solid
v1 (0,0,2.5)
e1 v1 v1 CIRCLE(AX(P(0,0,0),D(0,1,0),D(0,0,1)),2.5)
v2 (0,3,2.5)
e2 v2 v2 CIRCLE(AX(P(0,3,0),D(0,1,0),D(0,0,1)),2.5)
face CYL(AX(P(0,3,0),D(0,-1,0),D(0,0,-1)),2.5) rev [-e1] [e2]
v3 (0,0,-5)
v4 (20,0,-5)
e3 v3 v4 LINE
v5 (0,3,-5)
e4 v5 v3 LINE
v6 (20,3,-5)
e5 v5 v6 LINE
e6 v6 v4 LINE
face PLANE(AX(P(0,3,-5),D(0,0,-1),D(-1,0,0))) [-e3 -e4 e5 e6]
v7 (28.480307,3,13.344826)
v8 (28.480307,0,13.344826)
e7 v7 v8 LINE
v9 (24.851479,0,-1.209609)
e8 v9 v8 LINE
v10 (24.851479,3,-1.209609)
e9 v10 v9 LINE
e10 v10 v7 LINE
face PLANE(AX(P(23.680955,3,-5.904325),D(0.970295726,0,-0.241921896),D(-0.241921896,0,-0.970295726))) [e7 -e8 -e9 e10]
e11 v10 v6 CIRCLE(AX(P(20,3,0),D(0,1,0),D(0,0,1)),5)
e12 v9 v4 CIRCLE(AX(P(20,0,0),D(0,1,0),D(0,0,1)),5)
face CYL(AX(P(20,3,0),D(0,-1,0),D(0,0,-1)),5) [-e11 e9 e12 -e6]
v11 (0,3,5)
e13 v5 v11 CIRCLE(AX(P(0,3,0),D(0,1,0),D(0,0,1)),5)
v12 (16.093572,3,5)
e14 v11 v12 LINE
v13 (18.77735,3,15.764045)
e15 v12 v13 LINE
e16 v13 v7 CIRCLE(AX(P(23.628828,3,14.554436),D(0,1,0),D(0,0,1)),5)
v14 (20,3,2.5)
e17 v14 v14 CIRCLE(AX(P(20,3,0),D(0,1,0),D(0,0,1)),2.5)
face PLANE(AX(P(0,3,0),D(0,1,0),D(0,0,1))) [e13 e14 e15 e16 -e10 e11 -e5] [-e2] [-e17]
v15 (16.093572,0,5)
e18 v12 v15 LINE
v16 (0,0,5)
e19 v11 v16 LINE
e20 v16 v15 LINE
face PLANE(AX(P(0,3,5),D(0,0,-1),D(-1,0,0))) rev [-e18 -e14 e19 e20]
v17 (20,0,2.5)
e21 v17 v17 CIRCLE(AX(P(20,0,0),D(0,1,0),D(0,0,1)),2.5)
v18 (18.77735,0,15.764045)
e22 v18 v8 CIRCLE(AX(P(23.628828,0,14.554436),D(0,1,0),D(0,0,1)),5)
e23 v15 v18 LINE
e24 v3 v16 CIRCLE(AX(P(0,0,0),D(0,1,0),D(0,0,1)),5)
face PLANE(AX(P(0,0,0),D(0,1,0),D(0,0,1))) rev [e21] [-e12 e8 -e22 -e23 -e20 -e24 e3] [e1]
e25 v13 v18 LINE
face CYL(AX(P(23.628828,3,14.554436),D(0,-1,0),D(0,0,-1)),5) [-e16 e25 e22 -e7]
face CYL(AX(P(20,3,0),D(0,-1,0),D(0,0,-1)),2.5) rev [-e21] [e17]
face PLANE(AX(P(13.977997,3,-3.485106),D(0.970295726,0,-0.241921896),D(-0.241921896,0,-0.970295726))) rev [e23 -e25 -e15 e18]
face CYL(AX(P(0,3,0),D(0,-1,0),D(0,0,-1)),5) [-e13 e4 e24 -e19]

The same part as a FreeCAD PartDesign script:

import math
import FreeCAD as App
import Part
import Sketcher
Q = App.Units.Quantity

doc = App.newDocument("Part")
body = doc.addObject("PartDesign::Body", "Body")

# Sketch on XZ plane
sketch1 = body.newObject("Sketcher::SketchObject", "Sketch")
sketch1.AttachmentSupport = (doc.getObject("XZ_Plane"), [""])
sketch1.MapMode = "FlatFace"
sketch1.addGeometry(Part.LineSegment(App.Vector(20, -5, 0), App.Vector(0, -5, 0)), False)
sketch1.addGeometry(Part.ArcOfCircle(Part.Circle(App.Vector(0, 0, 0), App.Vector(0, 0, 1), 5), math.radians(90), math.radians(270)), False)
sketch1.addGeometry(Part.LineSegment(App.Vector(0, 5, 0), App.Vector(16.1, 5, 0)), False)
sketch1.addGeometry(Part.LineSegment(App.Vector(16.1, 5, 0), App.Vector(18.8, 15.8, 0)), False)
sketch1.addGeometry(Part.ArcOfCircle(Part.Circle(App.Vector(23.6, 14.6, 0), App.Vector(0, 0, 1), 5), math.radians(-14), math.radians(166)), False)
sketch1.addGeometry(Part.LineSegment(App.Vector(28.5, 13.3, 0), App.Vector(24.9, -1.2, 0)), False)
sketch1.addGeometry(Part.ArcOfCircle(Part.Circle(App.Vector(20, 0, 0), App.Vector(0, 0, 1), 5), math.radians(-90), math.radians(-14)), False)
sketch1.addGeometry(Part.Circle(App.Vector(0, 0, 0), App.Vector(0, 0, 1), 2.5), False)
sketch1.addGeometry(Part.Circle(App.Vector(20, 0, 0), App.Vector(0, 0, 1), 2.5), False)
sketch1.addConstraint(Sketcher.Constraint("Tangent", 0, 2, 1, 2))
sketch1.addConstraint(Sketcher.Constraint("Tangent", 1, 1, 2, 1))
sketch1.addConstraint(Sketcher.Constraint("Coincident", 2, 2, 3, 1))
sketch1.addConstraint(Sketcher.Constraint("Tangent", 3, 2, 4, 2))
sketch1.addConstraint(Sketcher.Constraint("Tangent", 4, 1, 5, 1))
sketch1.addConstraint(Sketcher.Constraint("Tangent", 5, 2, 6, 2))
sketch1.addConstraint(Sketcher.Constraint("Tangent", 6, 1, 0, 1))
sketch1.addConstraint(Sketcher.Constraint("Horizontal", 0))
sketch1.addConstraint(Sketcher.Constraint("Horizontal", 2))
sketch1.addConstraint(Sketcher.Constraint("Coincident", 1, 3, -1, 1))
sketch1.addConstraint(Sketcher.Constraint("Coincident", 7, 3, -1, 1))
sketch1.addConstraint(Sketcher.Constraint("Coincident", 8, 3, 6, 3))
sketch1.addConstraint(Sketcher.Constraint("Equal", 1, 4))
sketch1.addConstraint(Sketcher.Constraint("Equal", 4, 6))
sketch1.addConstraint(Sketcher.Constraint("Equal", 7, 8))
sketch1.addConstraint(Sketcher.Constraint("Parallel", 3, 5))
sketch1.addConstraint(Sketcher.Constraint("Diameter", 7, 5.0))
sketch1.addConstraint(Sketcher.Constraint("Radius", 1, 5.0))
sketch1.addConstraint(Sketcher.Constraint("DistanceX", 0, 2, 0, 1, 20.0))
sketch1.addConstraint(Sketcher.Constraint("Angle", 3, Q("76 deg")))
sketch1.addConstraint(Sketcher.Constraint("Distance", 5, 15.0))
pad1 = body.newObject("PartDesign::Pad", "Pad")
pad1.Profile = sketch1
pad1.Length = 3
pad1.Reversed = True

doc.recompute()
